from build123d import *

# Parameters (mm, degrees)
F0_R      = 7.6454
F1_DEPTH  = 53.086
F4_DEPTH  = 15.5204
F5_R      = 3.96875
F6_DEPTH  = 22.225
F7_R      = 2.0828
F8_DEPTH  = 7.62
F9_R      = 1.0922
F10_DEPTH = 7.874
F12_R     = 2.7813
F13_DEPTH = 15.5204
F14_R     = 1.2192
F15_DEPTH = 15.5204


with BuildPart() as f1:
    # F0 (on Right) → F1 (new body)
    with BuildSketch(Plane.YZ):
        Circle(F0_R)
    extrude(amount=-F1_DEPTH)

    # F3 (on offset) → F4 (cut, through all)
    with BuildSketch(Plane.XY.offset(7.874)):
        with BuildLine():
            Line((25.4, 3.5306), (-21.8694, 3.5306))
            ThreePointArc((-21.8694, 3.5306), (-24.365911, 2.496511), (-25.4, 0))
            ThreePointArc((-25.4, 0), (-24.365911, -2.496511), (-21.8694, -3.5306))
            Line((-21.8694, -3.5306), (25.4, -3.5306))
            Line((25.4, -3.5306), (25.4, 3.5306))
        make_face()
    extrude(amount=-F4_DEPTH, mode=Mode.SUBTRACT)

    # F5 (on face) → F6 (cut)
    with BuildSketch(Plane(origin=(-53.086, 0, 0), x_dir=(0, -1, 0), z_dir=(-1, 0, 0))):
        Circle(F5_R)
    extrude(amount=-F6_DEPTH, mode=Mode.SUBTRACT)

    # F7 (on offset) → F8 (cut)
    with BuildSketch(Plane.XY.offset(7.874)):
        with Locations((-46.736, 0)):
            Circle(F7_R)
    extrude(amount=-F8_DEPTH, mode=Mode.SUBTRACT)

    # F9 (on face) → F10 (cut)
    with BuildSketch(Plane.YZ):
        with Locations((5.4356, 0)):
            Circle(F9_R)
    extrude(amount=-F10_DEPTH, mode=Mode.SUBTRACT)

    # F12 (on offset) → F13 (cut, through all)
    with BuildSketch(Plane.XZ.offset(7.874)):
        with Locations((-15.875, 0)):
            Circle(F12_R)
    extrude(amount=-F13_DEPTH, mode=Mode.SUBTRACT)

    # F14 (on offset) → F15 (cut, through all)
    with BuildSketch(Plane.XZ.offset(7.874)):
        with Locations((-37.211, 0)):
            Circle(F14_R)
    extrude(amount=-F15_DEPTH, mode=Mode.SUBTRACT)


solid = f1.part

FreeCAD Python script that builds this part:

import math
import FreeCAD as App
import Part
import Sketcher
Q = App.Units.Quantity

doc = App.newDocument("Part")
body = doc.addObject("PartDesign::Body", "Body")

sketch1 = body.newObject("Sketcher::SketchObject", "Sketch")
sketch1.AttachmentSupport = (doc.getObject("YZ_Plane"), [""])
sketch1.MapMode = "FlatFace"
sketch1.addGeometry(Part.Circle(App.Vector(0, 0, 0), App.Vector(0, 0, 1), 8), False)
sketch1.addConstraint([
    Sketcher.Constraint("Coincident", 0, 3, -1, 1),
    Sketcher.Constraint("Diameter", 0, Q("0.602 in")),
])
pad1 = body.newObject("PartDesign::Pad", "Pad")
pad1.Profile = sketch1
pad1.Length = Q("2.09 in")
pad1.Reversed = True

sketch2 = body.newObject("Sketcher::SketchObject", "Sketch001")
sketch2.AttachmentSupport = (doc.getObject("XY_Plane"), [""])
sketch2.MapMode = "FlatFace"
sketch2.AttachmentOffset = App.Placement(App.Vector(0, 0, 0.31 * 25.4), App.Rotation())
sketch2.addGeometry([
    Part.LineSegment(App.Vector(25.4, 3.5, 0), App.Vector(-21.9, 3.5, 0)),
    Part.ArcOfCircle(Part.Circle(App.Vector(-21.9, 0, 0), App.Vector(0, 0, 1), 3.5), math.radians(90), math.radians(180)),
    Part.ArcOfCircle(Part.Circle(App.Vector(-21.9, 0, 0), App.Vector(0, 0, 1), 3.5), math.radians(-180), math.radians(-90)),
    Part.LineSegment(App.Vector(-21.9, -3.5, 0), App.Vector(25.4, -3.5, 0)),
    Part.LineSegment(App.Vector(25.4, -3.5, 0), App.Vector(25.4, 3.5, 0)),
], False)
sketch2.addConstraint([
    Sketcher.Constraint("Tangent", 0, 2, 1, 1),
    Sketcher.Constraint("Tangent", 1, 2, 2, 1),
    Sketcher.Constraint("Tangent", 2, 2, 3, 1),
    Sketcher.Constraint("Coincident", 3, 2, 4, 1),
    Sketcher.Constraint("Coincident", 4, 2, 0, 1),
    Sketcher.Constraint("Horizontal", 0),
    Sketcher.Constraint("Horizontal", 3),
    Sketcher.Constraint("Vertical", 4),
    Sketcher.Constraint("Equal", 1, 2),
    Sketcher.Constraint("PointOnObject", 1, 3, -1),
    Sketcher.Constraint("PointOnObject", 1, 2, -1),
    Sketcher.Constraint("DistanceX", 1, 2, -1, 1, Q("1 in")),
    Sketcher.Constraint("DistanceX", -1, 1, 3, 2, Q("1 in")),
    Sketcher.Constraint("Radius", 1, Q("0.139 in")),
])
pocket1 = body.newObject("PartDesign::Pocket", "Pocket")
pocket1.Profile = sketch2
pocket1.Type = "ThroughAll"

sketch3 = body.newObject("Sketcher::SketchObject", "Sketch002")
sketch3.AttachmentSupport = (doc.getObject("YZ_Plane"), [""])
sketch3.MapMode = "FlatFace"
sketch3.AttachmentOffset = App.Placement(App.Vector(0, 0, -2.09 * 25.4), App.Rotation())
sketch3.addGeometry(Part.Circle(App.Vector(0, 0, 0), App.Vector(0, 0, 1), 4), False)
sketch3.addConstraint([
    Sketcher.Constraint("Coincident", 0, 3, -1, 1),
    Sketcher.Constraint("Diameter", 0, Q("0.3125 in")),
])
pocket2 = body.newObject("PartDesign::Pocket", "Pocket001")
pocket2.Profile = sketch3
pocket2.Length = Q("0.875 in")
pocket2.Reversed = True

sketch4 = body.newObject("Sketcher::SketchObject", "Sketch003")
sketch4.AttachmentSupport = (doc.getObject("XY_Plane"), [""])
sketch4.MapMode = "FlatFace"
sketch4.AttachmentOffset = App.Placement(App.Vector(0, 0, 0.31 * 25.4), App.Rotation())
sketch4.addGeometry(Part.Circle(App.Vector(-46.7, 0, 0), App.Vector(0, 0, 1), 2.1), False)
sketch4.addConstraint([
    Sketcher.Constraint("PointOnObject", 0, 3, -1),
    Sketcher.Constraint("Diameter", 0, Q("0.164 in")),
    Sketcher.Constraint("DistanceX", 0, 3, -1, 1, Q("1.84 in")),
])
pocket3 = body.newObject("PartDesign::Pocket", "Pocket002")
pocket3.Profile = sketch4
pocket3.Length = Q("0.3 in")

sketch5 = body.newObject("Sketcher::SketchObject", "Sketch004")
sketch5.AttachmentSupport = (doc.getObject("YZ_Plane"), [""])
sketch5.MapMode = "FlatFace"
sketch5.addGeometry(Part.Circle(App.Vector(5.4, 0, 0), App.Vector(0, 0, 1), 1.1), False)
sketch5.addConstraint([
    Sketcher.Constraint("PointOnObject", 0, 3, -1),
    Sketcher.Constraint("Diameter", 0, Q("0.086 in")),
    Sketcher.Constraint("DistanceX", -1, 1, 0, 3, Q("0.214 in")),
])
pocket4 = body.newObject("PartDesign::Pocket", "Pocket003")
pocket4.Profile = sketch5
pocket4.Length = Q("0.31 in")

sketch6 = body.newObject("Sketcher::SketchObject", "Sketch005")
sketch6.AttachmentSupport = (doc.getObject("XZ_Plane"), [""])
sketch6.MapMode = "FlatFace"
sketch6.AttachmentOffset = App.Placement(App.Vector(0, 0, 0.31 * 25.4), App.Rotation())
sketch6.addGeometry(Part.Circle(App.Vector(-15.9, 0, 0), App.Vector(0, 0, 1), 2.8), False)
sketch6.addConstraint([
    Sketcher.Constraint("PointOnObject", 0, 3, -1),
    Sketcher.Constraint("Diameter", 0, Q("0.219 in")),
    Sketcher.Constraint("DistanceX", 0, 3, -1, 1, Q("0.625 in")),
])
pocket5 = body.newObject("PartDesign::Pocket", "Pocket004")
pocket5.Profile = sketch6
pocket5.Type = "ThroughAll"

sketch7 = body.newObject("Sketcher::SketchObject", "Sketch006")
sketch7.AttachmentSupport = (doc.getObject("XZ_Plane"), [""])
sketch7.MapMode = "FlatFace"
sketch7.AttachmentOffset = App.Placement(App.Vector(0, 0, 0.31 * 25.4), App.Rotation())
sketch7.addGeometry(Part.Circle(App.Vector(-37.2, 0, 0), App.Vector(0, 0, 1), 1.2), False)
sketch7.addConstraint([
    Sketcher.Constraint("PointOnObject", 0, 3, -1),
    Sketcher.Constraint("Diameter", 0, Q("0.096 in")),
    Sketcher.Constraint("DistanceX", 0, 3, -1, 1, Q("1.465 in")),
])
pocket6 = body.newObject("PartDesign::Pocket", "Pocket005")
pocket6.Profile = sketch7
pocket6.Type = "ThroughAll"

doc.recompute()
